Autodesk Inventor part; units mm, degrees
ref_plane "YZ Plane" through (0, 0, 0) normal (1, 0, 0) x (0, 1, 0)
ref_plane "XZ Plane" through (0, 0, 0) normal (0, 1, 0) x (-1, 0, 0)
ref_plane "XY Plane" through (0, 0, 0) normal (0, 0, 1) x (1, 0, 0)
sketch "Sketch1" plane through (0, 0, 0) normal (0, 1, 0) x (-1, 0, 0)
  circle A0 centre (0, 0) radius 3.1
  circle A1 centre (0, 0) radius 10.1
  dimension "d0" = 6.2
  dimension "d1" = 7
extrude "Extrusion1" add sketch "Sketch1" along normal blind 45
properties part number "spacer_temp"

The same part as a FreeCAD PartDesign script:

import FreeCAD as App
import Part
import Sketcher
Q = App.Units.Quantity

doc = App.newDocument("Part")
body = doc.addObject("PartDesign::Body", "Body")

sketch1 = body.newObject("Sketcher::SketchObject", "Sketch")
sketch1.AttachmentSupport = (doc.getObject("XZ_Plane"), [""])
sketch1.MapMode = "FlatFace"
sketch1.addGeometry([
    Part.Circle(App.Vector(0, 0, 0), App.Vector(0, 0, 1), 10.1),
    Part.Circle(App.Vector(0, 0, 0), App.Vector(0, 0, 1), 3.1),
], False)
sketch1.addConstraint([
    Sketcher.Constraint("Coincident", 0, 3, -1, 1),
    Sketcher.Constraint("Coincident", 1, 3, -1, 1),
    Sketcher.Constraint("Diameter", 1, Q("6.2 mm")),
    Sketcher.Constraint("Diameter", 0, Q("20.2 mm")),
])
pad1 = body.newObject("PartDesign::Pad", "Pad")
pad1.Profile = sketch1
pad1.Length = 45
pad1.Reversed = True

doc.recompute()
